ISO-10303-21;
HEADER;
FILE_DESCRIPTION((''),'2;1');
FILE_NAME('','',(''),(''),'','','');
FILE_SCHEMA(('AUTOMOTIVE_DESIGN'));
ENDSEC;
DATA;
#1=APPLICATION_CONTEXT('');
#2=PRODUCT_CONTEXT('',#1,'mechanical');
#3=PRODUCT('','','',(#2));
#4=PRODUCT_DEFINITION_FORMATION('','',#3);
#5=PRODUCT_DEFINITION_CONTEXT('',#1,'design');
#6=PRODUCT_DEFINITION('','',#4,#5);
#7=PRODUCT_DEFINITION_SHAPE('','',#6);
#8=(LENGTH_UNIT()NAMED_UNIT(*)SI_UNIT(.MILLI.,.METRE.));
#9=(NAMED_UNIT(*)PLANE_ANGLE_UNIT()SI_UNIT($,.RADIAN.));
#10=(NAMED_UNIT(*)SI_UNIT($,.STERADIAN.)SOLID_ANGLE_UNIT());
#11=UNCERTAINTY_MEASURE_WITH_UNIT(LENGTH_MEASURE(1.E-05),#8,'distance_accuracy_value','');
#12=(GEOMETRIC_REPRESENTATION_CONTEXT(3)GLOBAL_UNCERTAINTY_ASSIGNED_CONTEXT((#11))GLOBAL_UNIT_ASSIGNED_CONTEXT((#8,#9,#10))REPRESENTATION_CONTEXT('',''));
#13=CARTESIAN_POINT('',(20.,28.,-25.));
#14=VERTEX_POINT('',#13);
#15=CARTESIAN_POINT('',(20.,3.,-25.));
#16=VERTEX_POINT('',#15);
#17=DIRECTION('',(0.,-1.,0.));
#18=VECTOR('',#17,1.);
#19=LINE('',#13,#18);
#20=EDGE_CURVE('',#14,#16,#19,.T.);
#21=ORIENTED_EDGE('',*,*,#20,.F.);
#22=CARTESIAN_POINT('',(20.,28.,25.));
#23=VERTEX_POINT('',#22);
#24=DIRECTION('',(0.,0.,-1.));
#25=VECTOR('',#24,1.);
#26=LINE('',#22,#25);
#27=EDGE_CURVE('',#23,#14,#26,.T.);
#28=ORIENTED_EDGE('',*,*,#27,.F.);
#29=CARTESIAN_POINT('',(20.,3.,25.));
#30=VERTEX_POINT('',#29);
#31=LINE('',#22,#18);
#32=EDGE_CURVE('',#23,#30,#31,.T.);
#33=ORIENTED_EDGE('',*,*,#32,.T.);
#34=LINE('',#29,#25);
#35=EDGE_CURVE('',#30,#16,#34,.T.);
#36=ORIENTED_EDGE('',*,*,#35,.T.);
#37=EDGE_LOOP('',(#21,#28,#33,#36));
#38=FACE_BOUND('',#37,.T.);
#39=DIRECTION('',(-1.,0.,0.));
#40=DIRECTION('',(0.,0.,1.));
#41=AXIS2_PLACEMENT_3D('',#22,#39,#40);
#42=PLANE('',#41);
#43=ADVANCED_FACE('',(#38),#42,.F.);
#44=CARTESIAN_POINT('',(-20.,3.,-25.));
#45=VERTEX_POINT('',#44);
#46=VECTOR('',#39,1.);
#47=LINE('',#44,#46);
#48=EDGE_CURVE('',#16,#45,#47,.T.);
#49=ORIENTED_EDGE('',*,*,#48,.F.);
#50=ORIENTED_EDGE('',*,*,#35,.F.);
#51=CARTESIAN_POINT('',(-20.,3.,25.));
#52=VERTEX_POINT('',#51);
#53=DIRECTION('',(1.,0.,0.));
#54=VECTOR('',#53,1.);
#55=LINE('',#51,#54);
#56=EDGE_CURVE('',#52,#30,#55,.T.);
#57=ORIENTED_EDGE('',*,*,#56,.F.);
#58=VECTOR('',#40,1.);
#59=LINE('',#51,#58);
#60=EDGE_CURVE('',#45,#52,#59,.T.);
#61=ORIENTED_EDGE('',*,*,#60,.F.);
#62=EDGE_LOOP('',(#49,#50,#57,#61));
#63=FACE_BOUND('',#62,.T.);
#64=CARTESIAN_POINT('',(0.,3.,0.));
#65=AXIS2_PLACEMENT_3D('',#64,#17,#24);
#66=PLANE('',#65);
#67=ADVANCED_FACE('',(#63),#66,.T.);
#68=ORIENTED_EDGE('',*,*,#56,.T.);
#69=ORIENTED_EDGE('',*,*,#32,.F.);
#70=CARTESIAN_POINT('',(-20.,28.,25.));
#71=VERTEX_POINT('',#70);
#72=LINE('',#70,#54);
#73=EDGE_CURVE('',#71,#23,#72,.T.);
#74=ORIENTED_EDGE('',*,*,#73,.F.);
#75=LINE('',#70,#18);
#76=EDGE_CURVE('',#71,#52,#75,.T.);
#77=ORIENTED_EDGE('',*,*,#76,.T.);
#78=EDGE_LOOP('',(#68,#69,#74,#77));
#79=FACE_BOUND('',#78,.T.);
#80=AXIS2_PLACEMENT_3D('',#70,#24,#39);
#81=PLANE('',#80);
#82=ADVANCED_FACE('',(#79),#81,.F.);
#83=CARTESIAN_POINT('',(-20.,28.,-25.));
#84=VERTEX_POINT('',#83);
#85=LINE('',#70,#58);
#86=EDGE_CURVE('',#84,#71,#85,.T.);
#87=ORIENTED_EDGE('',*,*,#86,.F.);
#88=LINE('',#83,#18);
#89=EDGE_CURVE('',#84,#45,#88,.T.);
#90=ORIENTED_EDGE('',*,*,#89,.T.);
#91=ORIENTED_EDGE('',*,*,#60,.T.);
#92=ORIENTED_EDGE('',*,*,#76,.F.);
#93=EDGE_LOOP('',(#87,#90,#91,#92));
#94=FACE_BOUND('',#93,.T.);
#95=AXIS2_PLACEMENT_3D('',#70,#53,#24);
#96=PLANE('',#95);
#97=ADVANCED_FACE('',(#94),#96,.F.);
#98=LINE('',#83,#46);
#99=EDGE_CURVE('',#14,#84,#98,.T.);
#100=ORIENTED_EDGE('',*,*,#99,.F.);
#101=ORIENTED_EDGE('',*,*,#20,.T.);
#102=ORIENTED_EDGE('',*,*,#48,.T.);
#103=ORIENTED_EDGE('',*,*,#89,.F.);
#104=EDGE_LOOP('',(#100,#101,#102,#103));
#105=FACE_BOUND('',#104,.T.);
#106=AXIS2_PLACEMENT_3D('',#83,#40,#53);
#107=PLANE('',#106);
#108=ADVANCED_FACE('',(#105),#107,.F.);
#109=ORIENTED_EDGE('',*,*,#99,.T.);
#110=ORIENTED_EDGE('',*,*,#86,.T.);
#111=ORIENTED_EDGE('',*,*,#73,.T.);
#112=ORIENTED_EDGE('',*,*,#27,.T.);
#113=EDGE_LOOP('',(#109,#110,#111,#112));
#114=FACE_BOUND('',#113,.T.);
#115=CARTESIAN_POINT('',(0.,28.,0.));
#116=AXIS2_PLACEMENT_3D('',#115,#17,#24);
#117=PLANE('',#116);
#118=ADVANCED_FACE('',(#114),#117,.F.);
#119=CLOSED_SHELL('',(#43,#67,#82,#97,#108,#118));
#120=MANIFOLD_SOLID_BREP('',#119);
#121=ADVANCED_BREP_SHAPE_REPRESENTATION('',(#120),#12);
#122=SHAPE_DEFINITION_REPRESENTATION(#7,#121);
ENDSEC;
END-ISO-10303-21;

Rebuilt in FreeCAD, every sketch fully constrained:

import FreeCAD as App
import Part
import Sketcher

V = App.Vector


def add_polygon(sketch, points):
    """Adds a closed chain of lines whose ends are joined by coincident constraints."""
    first, n = sketch.GeometryCount, len(points)
    for a, b in zip(points, points[1:] + points[:1]):
        sketch.addGeometry(Part.LineSegment(App.Vector(*a, 0), App.Vector(*b, 0)), False)
    for i in range(n):
        sketch.addConstraint(Sketcher.Constraint("Coincident", first + i, 2, first + (i + 1) % n, 1))

doc = App.newDocument("Part")
body = doc.addObject("PartDesign::Body", "Body")

# Sketch on XZ plane
sketch1 = body.newObject("Sketcher::SketchObject", "Sketch")
sketch1.AttachmentSupport = (doc.getObject("XZ_Plane"), [""])
sketch1.MapMode = "FlatFace"
sketch1.AttachmentOffset = App.Placement(V(0, 0, -3), App.Rotation())
add_polygon(sketch1, [(-20, -25), (-20, 25), (20, 25), (20, -25)])  # lines 0-3
sketch1.addConstraint(Sketcher.Constraint("Vertical", 0))
sketch1.addConstraint(Sketcher.Constraint("Horizontal", 1))
sketch1.addConstraint(Sketcher.Constraint("Vertical", 2))
sketch1.addConstraint(Sketcher.Constraint("Horizontal", 3))
sketch1.addConstraint(Sketcher.Constraint("Symmetric", 0, 2, 2, 2, -1, 1))
sketch1.addConstraint(Sketcher.Constraint("DistanceX", 1, 1, 1, 2, 40.0))
sketch1.addConstraint(Sketcher.Constraint("DistanceY", 0, 1, 0, 2, 50.0))
pad1 = body.newObject("PartDesign::Pad", "Pad")
pad1.Profile = sketch1
pad1.Length = 25
pad1.Reversed = True

doc.recompute()
